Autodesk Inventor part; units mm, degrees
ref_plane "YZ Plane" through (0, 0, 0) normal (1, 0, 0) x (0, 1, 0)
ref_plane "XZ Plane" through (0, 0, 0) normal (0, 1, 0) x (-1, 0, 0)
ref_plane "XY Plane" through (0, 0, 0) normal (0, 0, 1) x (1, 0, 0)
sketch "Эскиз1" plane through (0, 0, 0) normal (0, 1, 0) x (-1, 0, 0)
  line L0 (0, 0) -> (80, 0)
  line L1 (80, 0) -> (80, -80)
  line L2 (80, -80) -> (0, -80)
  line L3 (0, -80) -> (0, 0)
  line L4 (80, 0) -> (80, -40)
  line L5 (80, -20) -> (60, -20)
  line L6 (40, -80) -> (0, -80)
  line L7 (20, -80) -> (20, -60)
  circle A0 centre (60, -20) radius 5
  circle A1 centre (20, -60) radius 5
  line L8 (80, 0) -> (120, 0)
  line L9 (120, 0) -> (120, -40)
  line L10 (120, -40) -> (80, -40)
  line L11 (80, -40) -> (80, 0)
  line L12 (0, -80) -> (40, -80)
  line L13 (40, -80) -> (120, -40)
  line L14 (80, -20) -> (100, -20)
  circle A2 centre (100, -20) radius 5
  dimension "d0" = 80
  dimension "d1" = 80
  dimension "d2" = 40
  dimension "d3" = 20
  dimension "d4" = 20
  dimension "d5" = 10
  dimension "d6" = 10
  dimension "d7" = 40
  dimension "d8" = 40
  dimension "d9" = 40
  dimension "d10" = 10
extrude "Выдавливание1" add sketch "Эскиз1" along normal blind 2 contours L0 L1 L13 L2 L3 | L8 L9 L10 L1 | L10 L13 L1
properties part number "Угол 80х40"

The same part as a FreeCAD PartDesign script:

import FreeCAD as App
import Part
import Sketcher

doc = App.newDocument("Part")
body = doc.addObject("PartDesign::Body", "Body")

# Sketch on XZ plane
sketch1 = body.newObject("Sketcher::SketchObject", "Sketch")
sketch1.AttachmentSupport = (doc.getObject("XZ_Plane"), [""])
sketch1.MapMode = "FlatFace"
sketch1.addGeometry([
    Part.LineSegment(App.Vector(0, 0, 0), App.Vector(0, -80, 0)),  # 0
    Part.LineSegment(App.Vector(0, -80, 0), App.Vector(-20, -80, 0)),  # 1
    Part.LineSegment(App.Vector(-20, -80, 0), App.Vector(-40, -80, 0)),  # 2
    Part.LineSegment(App.Vector(-40, -80, 0), App.Vector(-120, -40, 0)),  # 3
    Part.LineSegment(App.Vector(-120, -40, 0), App.Vector(-120, 0, 0)),  # 4
    Part.LineSegment(App.Vector(-120, 0, 0), App.Vector(0, 0, 0)),  # 5
    Part.Circle(App.Vector(-20, -60, 0), App.Vector(0, 0, 1), 5),  # 6
    Part.Circle(App.Vector(-60, -20, 0), App.Vector(0, 0, 1), 5),  # 7
    Part.Circle(App.Vector(-100, -20, 0), App.Vector(0, 0, 1), 5),  # 8
], False)
sketch1.addConstraint([
    Sketcher.Constraint("Coincident", 0, 2, 1, 1),
    Sketcher.Constraint("Coincident", 1, 2, 2, 1),
    Sketcher.Constraint("Coincident", 2, 2, 3, 1),
    Sketcher.Constraint("Coincident", 3, 2, 4, 1),
    Sketcher.Constraint("Coincident", 4, 2, 5, 1),
    Sketcher.Constraint("Coincident", 5, 2, 0, 1),
    Sketcher.Constraint("Vertical", 0),
    Sketcher.Constraint("Horizontal", 1),
    Sketcher.Constraint("Horizontal", 2),
    Sketcher.Constraint("Vertical", 4),
    Sketcher.Constraint("Horizontal", 5),
    Sketcher.Constraint("Coincident", 5, 2, -1, 1),
    Sketcher.Constraint("Equal", 6, 7),
    Sketcher.Constraint("Equal", 7, 8),
    Sketcher.Constraint("Horizontal", 7, 3, 8, 3),
    Sketcher.Constraint("Vertical", 6, 3, 1, 2),
    Sketcher.Constraint("Equal", 1, 2),
    Sketcher.Constraint("Diameter", 6, 10.0),
    Sketcher.Constraint("DistanceX", 1, 2, 1, 1, 20.0),
    Sketcher.Constraint("DistanceY", 0, 2, 0, 1, 80.0),
    Sketcher.Constraint("DistanceY", 4, 1, 4, 2, 40.0),
    Sketcher.Constraint("DistanceY", 7, 3, -1, 1, 20.0),
    Sketcher.Constraint("DistanceX", 7, 3, 6, 3, 40.0),
    Sketcher.Constraint("DistanceY", 6, 3, 7, 3, 40.0),
    Sketcher.Constraint("DistanceX", 8, 3, 7, 3, 40.0),
    Sketcher.Constraint("DistanceX", 3, 2, 8, 3, 20.0),
])
pad1 = body.newObject("PartDesign::Pad", "Pad")
pad1.Profile = sketch1
pad1.Length = 2
pad1.Reversed = True

doc.recompute()
